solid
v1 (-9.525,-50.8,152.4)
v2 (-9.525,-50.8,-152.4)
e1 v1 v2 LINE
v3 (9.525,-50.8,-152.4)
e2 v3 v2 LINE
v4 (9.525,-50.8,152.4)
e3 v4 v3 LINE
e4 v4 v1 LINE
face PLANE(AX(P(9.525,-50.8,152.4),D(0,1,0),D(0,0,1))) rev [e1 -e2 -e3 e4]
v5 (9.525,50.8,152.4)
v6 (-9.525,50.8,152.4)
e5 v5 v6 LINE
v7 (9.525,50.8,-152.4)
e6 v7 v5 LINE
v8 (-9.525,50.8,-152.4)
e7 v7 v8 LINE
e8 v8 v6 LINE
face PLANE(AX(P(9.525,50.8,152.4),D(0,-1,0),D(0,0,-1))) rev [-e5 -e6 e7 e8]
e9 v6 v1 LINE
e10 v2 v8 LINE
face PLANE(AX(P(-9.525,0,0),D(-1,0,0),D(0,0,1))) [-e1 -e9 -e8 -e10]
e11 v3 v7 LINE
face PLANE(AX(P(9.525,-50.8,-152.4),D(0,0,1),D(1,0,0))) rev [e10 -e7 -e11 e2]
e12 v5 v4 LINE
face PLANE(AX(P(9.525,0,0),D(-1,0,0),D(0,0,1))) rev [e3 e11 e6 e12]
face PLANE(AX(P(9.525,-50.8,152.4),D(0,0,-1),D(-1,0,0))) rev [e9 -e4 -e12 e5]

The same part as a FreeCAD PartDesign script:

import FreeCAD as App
import Part
import Sketcher
Q = App.Units.Quantity


def add_polygon(sketch, points):
    """Adds a closed chain of lines whose ends are joined by coincident constraints."""
    first, n = sketch.GeometryCount, len(points)
    for a, b in zip(points, points[1:] + points[:1]):
        sketch.addGeometry(Part.LineSegment(App.Vector(*a, 0), App.Vector(*b, 0)), False)
    for i in range(n):
        sketch.addConstraint(Sketcher.Constraint("Coincident", first + i, 2, first + (i + 1) % n, 1))

doc = App.newDocument("Part")
body = doc.addObject("PartDesign::Body", "Body")

# Sketch on YZ plane
sketch1 = doc.addObject("Sketcher::SketchObject", "Sketch")
body.addObject(sketch1)
sketch1.AttachmentSupport = (doc.YZ_Plane, [""])
sketch1.MapMode = "FlatFace"
add_polygon(sketch1, [(50.8, 152.4), (-50.8, 152.4), (-50.8, -152.4), (50.8, -152.4)])  # lines 0-3
sketch1.addConstraint(Sketcher.Constraint("Horizontal", 0))
sketch1.addConstraint(Sketcher.Constraint("Vertical", 1))
sketch1.addConstraint(Sketcher.Constraint("Horizontal", 2))
sketch1.addConstraint(Sketcher.Constraint("Vertical", 3))
sketch1.addConstraint(Sketcher.Constraint("Symmetric", 0, 2, 2, 2, -1, 1))
sketch1.addConstraint(Sketcher.Constraint("DistanceX", 0, 2, 0, 1, Q("4 in")))
sketch1.addConstraint(Sketcher.Constraint("DistanceY", 1, 2, 1, 1, Q("12 in")))
pad1 = doc.addObject("PartDesign::Pad", "Pad")
body.addObject(pad1)
pad1.Profile = sketch1
pad1.Length = Q("0.75 in")
pad1.Midplane = True

doc.recompute()
